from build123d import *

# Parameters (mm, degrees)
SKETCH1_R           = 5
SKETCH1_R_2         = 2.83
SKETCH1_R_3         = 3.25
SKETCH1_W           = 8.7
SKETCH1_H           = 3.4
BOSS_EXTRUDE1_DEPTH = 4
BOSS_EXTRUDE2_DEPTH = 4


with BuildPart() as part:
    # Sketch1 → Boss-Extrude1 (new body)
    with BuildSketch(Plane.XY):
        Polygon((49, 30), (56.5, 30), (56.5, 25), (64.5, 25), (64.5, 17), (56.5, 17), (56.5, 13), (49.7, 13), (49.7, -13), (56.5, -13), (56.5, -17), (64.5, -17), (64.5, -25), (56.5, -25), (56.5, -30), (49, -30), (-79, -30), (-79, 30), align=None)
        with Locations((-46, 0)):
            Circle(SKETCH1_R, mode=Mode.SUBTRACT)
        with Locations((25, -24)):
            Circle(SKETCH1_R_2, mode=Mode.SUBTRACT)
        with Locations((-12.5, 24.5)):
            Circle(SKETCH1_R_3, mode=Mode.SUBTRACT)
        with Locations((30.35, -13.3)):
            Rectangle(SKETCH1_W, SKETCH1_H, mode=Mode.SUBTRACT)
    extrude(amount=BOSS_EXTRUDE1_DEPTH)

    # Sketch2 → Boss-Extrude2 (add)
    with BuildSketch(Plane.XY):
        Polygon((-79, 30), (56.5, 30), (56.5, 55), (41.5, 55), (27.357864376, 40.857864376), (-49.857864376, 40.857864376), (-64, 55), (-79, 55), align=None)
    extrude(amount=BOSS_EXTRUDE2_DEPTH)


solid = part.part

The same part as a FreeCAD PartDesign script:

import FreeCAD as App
import Part
import Sketcher
from FreeCAD import Vector
Q = App.Units.Quantity

doc = App.newDocument("Part")
body = doc.addObject("PartDesign::Body", "Body")

# Sketch on XY plane
sketch1 = body.newObject("Sketcher::SketchObject", "Sketch")
sketch1.AttachmentSupport = (doc.getObject("XY_Plane"), [""])
sketch1.MapMode = "FlatFace"
sketch1.addGeometry(Part.LineSegment(Vector(56.5, 30, 0), Vector(-79, 30, 0)), False)
sketch1.addGeometry(Part.LineSegment(Vector(-79, 30, 0), Vector(-79, -30, 0)), False)
sketch1.addGeometry(Part.LineSegment(Vector(-79, -30, 0), Vector(56.5, -30, 0)), False)
sketch1.addGeometry(Part.LineSegment(Vector(56.5, -30, 0), Vector(56.5, -25, 0)), False)
sketch1.addGeometry(Part.LineSegment(Vector(56.5, -25, 0), Vector(64.5, -25, 0)), False)
sketch1.addGeometry(Part.LineSegment(Vector(64.5, -25, 0), Vector(64.5, -17, 0)), False)
sketch1.addGeometry(Part.LineSegment(Vector(64.5, -17, 0), Vector(56.5, -17, 0)), False)
sketch1.addGeometry(Part.LineSegment(Vector(56.5, -17, 0), Vector(56.5, -13, 0)), False)
sketch1.addGeometry(Part.LineSegment(Vector(56.5, -13, 0), Vector(49.7, -13, 0)), False)
sketch1.addGeometry(Part.LineSegment(Vector(49.7, -13, 0), Vector(49.7, 13, 0)), False)
sketch1.addGeometry(Part.LineSegment(Vector(49.7, 13, 0), Vector(56.5, 13, 0)), False)
sketch1.addGeometry(Part.LineSegment(Vector(56.5, 13, 0), Vector(56.5, 17, 0)), False)
sketch1.addGeometry(Part.LineSegment(Vector(56.5, 17, 0), Vector(64.5, 17, 0)), False)
sketch1.addGeometry(Part.LineSegment(Vector(64.5, 17, 0), Vector(64.5, 25, 0)), False)
sketch1.addGeometry(Part.LineSegment(Vector(64.5, 25, 0), Vector(56.5, 25, 0)), False)
sketch1.addGeometry(Part.LineSegment(Vector(56.5, 25, 0), Vector(56.5, 30, 0)), False)
sketch1.addGeometry(Part.Circle(Vector(25, -24, 0), Vector(0, 0, 1), 2.8), False)
sketch1.addGeometry(Part.LineSegment(Vector(26, -15, 0), Vector(26, -11.6, 0)), False)
sketch1.addGeometry(Part.LineSegment(Vector(26, -11.6, 0), Vector(34.7, -11.6, 0)), False)
sketch1.addGeometry(Part.LineSegment(Vector(34.7, -11.6, 0), Vector(34.7, -15, 0)), False)
sketch1.addGeometry(Part.LineSegment(Vector(34.7, -15, 0), Vector(26, -15, 0)), False)
sketch1.addGeometry(Part.Circle(Vector(-46, 0, 0), Vector(0, 0, 1), 5), False)
sketch1.addGeometry(Part.Circle(Vector(-12.5, 24.5, 0), Vector(0, 0, 1), 3.2), False)
sketch1.addConstraint(Sketcher.Constraint("Coincident", 0, 2, 1, 1))
sketch1.addConstraint(Sketcher.Constraint("Coincident", 1, 2, 2, 1))
sketch1.addConstraint(Sketcher.Constraint("Coincident", 2, 2, 3, 1))
sketch1.addConstraint(Sketcher.Constraint("Coincident", 3, 2, 4, 1))
sketch1.addConstraint(Sketcher.Constraint("Coincident", 4, 2, 5, 1))
sketch1.addConstraint(Sketcher.Constraint("Coincident", 5, 2, 6, 1))
sketch1.addConstraint(Sketcher.Constraint("Coincident", 6, 2, 7, 1))
sketch1.addConstraint(Sketcher.Constraint("Coincident", 7, 2, 8, 1))
sketch1.addConstraint(Sketcher.Constraint("Coincident", 8, 2, 9, 1))
sketch1.addConstraint(Sketcher.Constraint("Coincident", 9, 2, 10, 1))
sketch1.addConstraint(Sketcher.Constraint("Coincident", 10, 2, 11, 1))
sketch1.addConstraint(Sketcher.Constraint("Coincident", 11, 2, 12, 1))
sketch1.addConstraint(Sketcher.Constraint("Coincident", 12, 2, 13, 1))
sketch1.addConstraint(Sketcher.Constraint("Coincident", 13, 2, 14, 1))
sketch1.addConstraint(Sketcher.Constraint("Coincident", 14, 2, 15, 1))
sketch1.addConstraint(Sketcher.Constraint("Coincident", 15, 2, 0, 1))
sketch1.addConstraint(Sketcher.Constraint("Coincident", 17, 2, 18, 1))
sketch1.addConstraint(Sketcher.Constraint("Coincident", 18, 2, 19, 1))
sketch1.addConstraint(Sketcher.Constraint("Coincident", 19, 2, 20, 1))
sketch1.addConstraint(Sketcher.Constraint("Coincident", 20, 2, 17, 1))
sketch1.addConstraint(Sketcher.Constraint("Horizontal", 0))
sketch1.addConstraint(Sketcher.Constraint("Vertical", 1))
sketch1.addConstraint(Sketcher.Constraint("Horizontal", 2))
sketch1.addConstraint(Sketcher.Constraint("Vertical", 3))
sketch1.addConstraint(Sketcher.Constraint("Horizontal", 4))
sketch1.addConstraint(Sketcher.Constraint("Vertical", 5))
sketch1.addConstraint(Sketcher.Constraint("Horizontal", 6))
sketch1.addConstraint(Sketcher.Constraint("Vertical", 7))
sketch1.addConstraint(Sketcher.Constraint("Horizontal", 8))
sketch1.addConstraint(Sketcher.Constraint("Vertical", 9))
sketch1.addConstraint(Sketcher.Constraint("Horizontal", 10))
sketch1.addConstraint(Sketcher.Constraint("Vertical", 11))
sketch1.addConstraint(Sketcher.Constraint("Horizontal", 12))
sketch1.addConstraint(Sketcher.Constraint("Vertical", 13))
sketch1.addConstraint(Sketcher.Constraint("Horizontal", 14))
sketch1.addConstraint(Sketcher.Constraint("Vertical", 15))
sketch1.addConstraint(Sketcher.Constraint("Vertical", 17))
sketch1.addConstraint(Sketcher.Constraint("Horizontal", 18))
sketch1.addConstraint(Sketcher.Constraint("Vertical", 19))
sketch1.addConstraint(Sketcher.Constraint("Horizontal", 20))
sketch1.addConstraint(Sketcher.Constraint("Symmetric", 7, 2, 10, 2, -1))
sketch1.addConstraint(Sketcher.Constraint("Symmetric", 5, 2, 12, 2, -1))
sketch1.addConstraint(Sketcher.Constraint("Symmetric", 3, 2, 14, 2, -1))
sketch1.addConstraint(Sketcher.Constraint("PointOnObject", 21, 3, -1))
sketch1.addConstraint(Sketcher.Constraint("Vertical", 3, 2, 6, 2))
sketch1.addConstraint(Sketcher.Constraint("Equal", 14, 5))
sketch1.addConstraint(Sketcher.Constraint("Equal", 3, 15))
sketch1.addConstraint(Sketcher.Constraint("Diameter", 21, Q("10 mm")))
sketch1.addConstraint(Sketcher.Constraint("Diameter", 22, Q("6.5 mm")))
sketch1.addConstraint(Sketcher.Constraint("Diameter", 16, Q("5.66 mm")))
sketch1.addConstraint(Sketcher.Constraint("DistanceX", 4, 1, 4, 2, Q("8 mm")))
sketch1.addConstraint(Sketcher.Constraint("DistanceY", 1, 2, 1, 1, Q("60 mm")))
sketch1.addConstraint(Sketcher.Constraint("DistanceY", 3, 1, 3, 2, Q("5 mm")))
sketch1.addConstraint(Sketcher.Constraint("DistanceY", 7, 1, 7, 2, Q("4 mm")))
sketch1.addConstraint(Sketcher.Constraint("DistanceX", 0, 2, 0, 1, Q("135.5 mm")))
sketch1.addConstraint(Sketcher.Constraint("DistanceX", 8, 2, 8, 1, Q("6.8 mm")))
sketch1.addConstraint(Sketcher.Constraint("DistanceX", 18, 1, 18, 2, Q("8.7 mm")))
sketch1.addConstraint(Sketcher.Constraint("DistanceY", 17, 1, 17, 2, Q("3.4 mm")))
sketch1.addConstraint(Sketcher.Constraint("DistanceX", -1, 1, 16, 3, Q("25 mm")))
sketch1.addConstraint(Sketcher.Constraint("DistanceY", 16, 3, -1, 1, Q("24 mm")))
sketch1.addConstraint(Sketcher.Constraint("DistanceX", 21, 3, -1, 1, Q("46 mm")))
sketch1.addConstraint(Sketcher.Constraint("DistanceX", 0, 2, -1, 1, Q("79 mm")))
sketch1.addConstraint(Sketcher.Constraint("DistanceX", -1, 1, 17, 2, Q("26 mm")))
sketch1.addConstraint(Sketcher.Constraint("DistanceY", 19, 2, -1, 1, Q("15 mm")))
sketch1.addConstraint(Sketcher.Constraint("DistanceX", 22, 3, 2, 2, Q("69 mm")))
sketch1.addConstraint(Sketcher.Constraint("DistanceY", -1, 1, 22, 3, Q("24.5 mm")))
pad1 = body.newObject("PartDesign::Pad", "Pad")
pad1.Profile = sketch1
pad1.Length = 4

# Sketch on XY plane
sketch2 = body.newObject("Sketcher::SketchObject", "Sketch001")
sketch2.AttachmentSupport = (doc.getObject("XY_Plane"), [""])
sketch2.MapMode = "FlatFace"
sketch2.addGeometry(Part.LineSegment(Vector(-79, 30, 0), Vector(56, 30, 0)), False)
sketch2.addGeometry(Part.LineSegment(Vector(56, 30, 0), Vector(56, 55, 0)), False)
sketch2.addGeometry(Part.LineSegment(Vector(56, 55, 0), Vector(42, 55, 0)), False)
sketch2.addGeometry(Part.LineSegment(Vector(42, 55, 0), Vector(27, 41, 0)), False)
sketch2.addGeometry(Part.LineSegment(Vector(27, 41, 0), Vector(-50, 41, 0)), False)
sketch2.addGeometry(Part.LineSegment(Vector(-50, 41, 0), Vector(-64, 55, 0)), False)
sketch2.addGeometry(Part.LineSegment(Vector(-64, 55, 0), Vector(-79, 55, 0)), False)
sketch2.addGeometry(Part.LineSegment(Vector(-79, 55, 0), Vector(-79, 30, 0)), False)
sketch2.addConstraint(Sketcher.Constraint("Coincident", 0, 2, 1, 1))
sketch2.addConstraint(Sketcher.Constraint("Coincident", 1, 2, 2, 1))
sketch2.addConstraint(Sketcher.Constraint("Coincident", 2, 2, 3, 1))
sketch2.addConstraint(Sketcher.Constraint("Coincident", 3, 2, 4, 1))
sketch2.addConstraint(Sketcher.Constraint("Coincident", 4, 2, 5, 1))
sketch2.addConstraint(Sketcher.Constraint("Coincident", 5, 2, 6, 1))
sketch2.addConstraint(Sketcher.Constraint("Coincident", 6, 2, 7, 1))
sketch2.addConstraint(Sketcher.Constraint("Coincident", 7, 2, 0, 1))
sketch2.addConstraint(Sketcher.Constraint("Horizontal", 0))
sketch2.addConstraint(Sketcher.Constraint("Vertical", 1))
sketch2.addConstraint(Sketcher.Constraint("Horizontal", 2))
sketch2.addConstraint(Sketcher.Constraint("Horizontal", 4))
sketch2.addConstraint(Sketcher.Constraint("Horizontal", 6))
sketch2.addConstraint(Sketcher.Constraint("Vertical", 7))
sketch2.addConstraint(Sketcher.Constraint("Perpendicular", 3, 5))
sketch2.addConstraint(Sketcher.Constraint("Horizontal", 2, 2, 5, 2))
sketch2.addConstraint(Sketcher.Constraint("Equal", 2, 6))
sketch2.addConstraint(Sketcher.Constraint("Equal", 3, 5))
sketch2.addConstraint(Sketcher.Constraint("DistanceX", 2, 2, 2, 1, Q("15 mm")))
sketch2.addConstraint(Sketcher.Constraint("DistanceY", 1, 1, 1, 2, Q("25 mm")))
sketch2.addConstraint(Sketcher.Constraint("Distance", 3, Q("20 mm")))
sketch2.addConstraint(Sketcher.Constraint("DistanceX", 0, 1, 0, 2, Q("135.5 mm")))
sketch2.addConstraint(Sketcher.Constraint("DistanceY", -1, 1, 0, 2, Q("30 mm")))
sketch2.addConstraint(Sketcher.Constraint("DistanceX", 5, 2, -1, 1, Q("64 mm")))
pad2 = body.newObject("PartDesign::Pad", "Pad001")
pad2.Profile = sketch2
pad2.Length = 4

doc.recompute()
